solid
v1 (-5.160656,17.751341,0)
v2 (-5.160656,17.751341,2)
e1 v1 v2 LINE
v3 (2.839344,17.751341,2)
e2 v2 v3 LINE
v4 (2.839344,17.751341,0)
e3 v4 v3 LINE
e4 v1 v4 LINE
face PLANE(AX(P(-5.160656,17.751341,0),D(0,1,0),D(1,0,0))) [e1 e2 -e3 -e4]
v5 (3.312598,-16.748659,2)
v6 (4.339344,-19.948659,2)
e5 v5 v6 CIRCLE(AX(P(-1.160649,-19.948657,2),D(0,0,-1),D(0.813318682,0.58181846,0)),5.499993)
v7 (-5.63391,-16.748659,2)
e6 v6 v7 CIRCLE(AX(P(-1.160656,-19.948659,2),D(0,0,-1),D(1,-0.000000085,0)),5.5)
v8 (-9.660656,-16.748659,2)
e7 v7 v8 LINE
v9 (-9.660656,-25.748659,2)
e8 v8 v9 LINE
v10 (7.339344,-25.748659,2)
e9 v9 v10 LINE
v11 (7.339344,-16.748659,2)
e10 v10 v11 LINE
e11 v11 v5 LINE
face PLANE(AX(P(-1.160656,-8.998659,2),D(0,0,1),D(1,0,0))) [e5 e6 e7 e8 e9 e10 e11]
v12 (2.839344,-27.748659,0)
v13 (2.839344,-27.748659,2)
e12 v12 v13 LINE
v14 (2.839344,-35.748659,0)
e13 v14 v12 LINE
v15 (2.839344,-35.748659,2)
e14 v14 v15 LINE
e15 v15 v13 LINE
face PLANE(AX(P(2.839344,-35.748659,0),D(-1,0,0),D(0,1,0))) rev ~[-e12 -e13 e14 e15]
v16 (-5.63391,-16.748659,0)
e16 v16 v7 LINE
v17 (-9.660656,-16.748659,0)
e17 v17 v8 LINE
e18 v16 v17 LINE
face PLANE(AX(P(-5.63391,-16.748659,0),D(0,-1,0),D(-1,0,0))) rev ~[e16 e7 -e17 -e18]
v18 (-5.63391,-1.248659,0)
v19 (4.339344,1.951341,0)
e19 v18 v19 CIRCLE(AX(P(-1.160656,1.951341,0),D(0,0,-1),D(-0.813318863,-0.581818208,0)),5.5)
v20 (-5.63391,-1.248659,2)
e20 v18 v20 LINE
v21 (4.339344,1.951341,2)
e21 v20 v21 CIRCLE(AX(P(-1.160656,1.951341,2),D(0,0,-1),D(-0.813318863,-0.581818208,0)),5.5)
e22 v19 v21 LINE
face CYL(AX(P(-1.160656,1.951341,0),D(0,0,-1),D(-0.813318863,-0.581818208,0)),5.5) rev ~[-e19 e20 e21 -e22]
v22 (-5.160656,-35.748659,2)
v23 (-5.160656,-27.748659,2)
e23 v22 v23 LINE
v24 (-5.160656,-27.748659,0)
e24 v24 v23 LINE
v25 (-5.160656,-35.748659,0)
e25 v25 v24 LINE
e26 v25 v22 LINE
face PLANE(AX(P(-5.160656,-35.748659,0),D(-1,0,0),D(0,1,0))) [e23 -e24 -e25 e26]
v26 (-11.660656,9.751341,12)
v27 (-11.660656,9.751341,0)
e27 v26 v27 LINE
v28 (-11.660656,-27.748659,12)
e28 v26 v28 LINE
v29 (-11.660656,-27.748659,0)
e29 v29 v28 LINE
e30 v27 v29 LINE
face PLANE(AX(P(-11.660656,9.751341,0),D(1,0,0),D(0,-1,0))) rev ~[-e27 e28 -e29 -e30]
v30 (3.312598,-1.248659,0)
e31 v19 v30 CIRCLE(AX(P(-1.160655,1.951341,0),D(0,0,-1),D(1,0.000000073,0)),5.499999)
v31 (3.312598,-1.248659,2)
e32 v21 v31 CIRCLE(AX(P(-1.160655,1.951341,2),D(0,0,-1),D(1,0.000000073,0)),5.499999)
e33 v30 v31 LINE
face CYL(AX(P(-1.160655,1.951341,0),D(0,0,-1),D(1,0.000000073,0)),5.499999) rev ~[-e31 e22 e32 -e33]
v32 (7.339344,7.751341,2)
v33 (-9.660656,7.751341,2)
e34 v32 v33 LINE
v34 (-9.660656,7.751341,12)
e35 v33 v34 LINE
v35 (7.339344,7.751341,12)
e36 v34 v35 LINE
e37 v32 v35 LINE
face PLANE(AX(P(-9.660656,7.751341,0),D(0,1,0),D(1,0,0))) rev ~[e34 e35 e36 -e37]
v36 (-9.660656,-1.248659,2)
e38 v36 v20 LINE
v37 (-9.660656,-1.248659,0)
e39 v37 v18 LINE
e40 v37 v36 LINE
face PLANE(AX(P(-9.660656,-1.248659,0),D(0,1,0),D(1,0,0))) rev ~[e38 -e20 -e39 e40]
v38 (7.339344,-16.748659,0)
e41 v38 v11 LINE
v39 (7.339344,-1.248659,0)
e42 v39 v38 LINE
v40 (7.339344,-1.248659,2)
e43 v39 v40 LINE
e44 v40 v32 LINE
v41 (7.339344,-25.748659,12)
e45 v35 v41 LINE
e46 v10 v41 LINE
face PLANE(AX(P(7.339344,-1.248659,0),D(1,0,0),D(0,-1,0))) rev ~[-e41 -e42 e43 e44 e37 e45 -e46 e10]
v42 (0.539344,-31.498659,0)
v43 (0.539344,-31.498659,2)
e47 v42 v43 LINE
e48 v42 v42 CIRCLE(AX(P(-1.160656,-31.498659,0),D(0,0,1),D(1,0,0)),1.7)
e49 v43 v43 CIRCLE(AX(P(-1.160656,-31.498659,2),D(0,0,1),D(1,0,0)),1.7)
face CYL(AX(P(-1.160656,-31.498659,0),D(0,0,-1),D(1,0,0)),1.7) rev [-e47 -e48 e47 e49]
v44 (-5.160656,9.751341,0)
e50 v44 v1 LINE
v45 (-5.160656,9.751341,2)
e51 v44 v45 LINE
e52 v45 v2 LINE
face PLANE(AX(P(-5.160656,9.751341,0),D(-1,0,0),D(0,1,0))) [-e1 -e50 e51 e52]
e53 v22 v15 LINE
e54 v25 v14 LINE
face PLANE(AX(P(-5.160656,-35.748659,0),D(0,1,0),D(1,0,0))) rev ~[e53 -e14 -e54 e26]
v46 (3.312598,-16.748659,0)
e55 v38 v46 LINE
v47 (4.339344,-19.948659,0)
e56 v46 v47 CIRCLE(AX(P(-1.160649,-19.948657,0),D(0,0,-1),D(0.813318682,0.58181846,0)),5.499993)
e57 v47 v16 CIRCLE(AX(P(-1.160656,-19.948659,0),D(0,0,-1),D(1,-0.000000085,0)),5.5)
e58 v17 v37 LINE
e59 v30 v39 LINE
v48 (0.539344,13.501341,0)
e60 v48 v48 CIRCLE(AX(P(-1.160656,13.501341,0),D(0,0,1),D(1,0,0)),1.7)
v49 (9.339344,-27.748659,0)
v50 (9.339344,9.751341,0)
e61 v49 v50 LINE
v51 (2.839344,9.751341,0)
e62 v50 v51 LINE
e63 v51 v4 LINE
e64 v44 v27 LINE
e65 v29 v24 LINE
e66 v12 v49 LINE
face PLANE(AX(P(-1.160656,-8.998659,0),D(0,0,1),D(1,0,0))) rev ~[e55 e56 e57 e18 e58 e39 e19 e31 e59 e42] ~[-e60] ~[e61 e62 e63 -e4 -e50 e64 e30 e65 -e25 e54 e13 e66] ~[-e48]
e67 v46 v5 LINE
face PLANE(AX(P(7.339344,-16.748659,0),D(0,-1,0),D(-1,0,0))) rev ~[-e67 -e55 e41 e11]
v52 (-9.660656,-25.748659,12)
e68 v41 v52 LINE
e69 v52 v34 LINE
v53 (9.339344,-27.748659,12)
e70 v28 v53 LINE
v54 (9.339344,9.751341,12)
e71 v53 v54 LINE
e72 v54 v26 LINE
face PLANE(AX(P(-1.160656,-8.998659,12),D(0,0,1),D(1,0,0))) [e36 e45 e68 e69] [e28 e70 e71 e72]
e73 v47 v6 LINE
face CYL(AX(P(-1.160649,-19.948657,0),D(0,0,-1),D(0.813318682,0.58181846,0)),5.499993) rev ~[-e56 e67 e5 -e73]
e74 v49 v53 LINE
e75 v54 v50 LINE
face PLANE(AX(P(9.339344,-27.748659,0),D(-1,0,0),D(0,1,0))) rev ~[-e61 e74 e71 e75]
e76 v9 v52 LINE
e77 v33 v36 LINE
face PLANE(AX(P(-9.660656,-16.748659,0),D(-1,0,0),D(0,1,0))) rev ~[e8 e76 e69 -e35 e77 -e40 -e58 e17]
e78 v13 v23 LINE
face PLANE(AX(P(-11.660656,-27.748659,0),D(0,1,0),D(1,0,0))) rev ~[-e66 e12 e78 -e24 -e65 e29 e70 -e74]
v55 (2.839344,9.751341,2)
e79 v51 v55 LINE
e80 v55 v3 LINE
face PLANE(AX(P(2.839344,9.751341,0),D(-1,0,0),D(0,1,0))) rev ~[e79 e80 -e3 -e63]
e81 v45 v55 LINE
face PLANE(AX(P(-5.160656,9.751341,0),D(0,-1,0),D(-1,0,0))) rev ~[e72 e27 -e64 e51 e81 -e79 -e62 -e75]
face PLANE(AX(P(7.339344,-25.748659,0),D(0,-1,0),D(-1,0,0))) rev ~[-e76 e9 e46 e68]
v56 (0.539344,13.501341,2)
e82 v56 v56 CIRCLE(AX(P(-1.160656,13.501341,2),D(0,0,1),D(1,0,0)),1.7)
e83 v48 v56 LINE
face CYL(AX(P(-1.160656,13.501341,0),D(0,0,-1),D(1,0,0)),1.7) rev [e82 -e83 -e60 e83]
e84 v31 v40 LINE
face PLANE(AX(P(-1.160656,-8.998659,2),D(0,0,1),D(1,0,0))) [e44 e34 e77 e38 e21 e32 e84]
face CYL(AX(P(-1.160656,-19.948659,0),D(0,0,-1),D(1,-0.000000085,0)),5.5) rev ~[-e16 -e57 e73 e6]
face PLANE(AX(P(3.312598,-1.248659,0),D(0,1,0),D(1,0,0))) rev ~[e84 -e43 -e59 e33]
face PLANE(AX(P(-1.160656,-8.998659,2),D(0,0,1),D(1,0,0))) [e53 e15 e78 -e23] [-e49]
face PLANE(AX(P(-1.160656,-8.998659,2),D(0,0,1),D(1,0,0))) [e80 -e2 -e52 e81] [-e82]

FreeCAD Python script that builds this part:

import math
import FreeCAD as App
import Part
import Sketcher
from FreeCAD import Vector

doc = App.newDocument("Part")
body = doc.addObject("PartDesign::Body", "Body")

sketch1 = body.newObject("Sketcher::SketchObject", "Sketch")
sketch1.AttachmentSupport = (doc.getObject("XY_Plane"), [""])
sketch1.MapMode = "FlatFace"
sketch1.addGeometry([
    Part.LineSegment(Vector(-11.660656, 9.751341, 0), Vector(-11.660656, -27.748659, 0)),
    Part.LineSegment(Vector(-11.660656, -27.748659, 0), Vector(-5.160656, -27.748659, 0)),
    Part.LineSegment(Vector(-5.160656, -27.748659, 0), Vector(-5.160656, -35.748659, 0)),
    Part.LineSegment(Vector(-5.160656, -35.748659, 0), Vector(2.839344, -35.748659, 0)),
    Part.LineSegment(Vector(2.839344, -35.748659, 0), Vector(2.839344, -27.748659, 0)),
    Part.LineSegment(Vector(2.839344, -27.748659, 0), Vector(9.339344, -27.748659, 0)),
    Part.LineSegment(Vector(9.339344, -27.748659, 0), Vector(9.339344, 9.751341, 0)),
    Part.LineSegment(Vector(9.339344, 9.751341, 0), Vector(2.839344, 9.751341, 0)),
    Part.LineSegment(Vector(2.839344, 9.751341, 0), Vector(2.839344, 17.751341, 0)),
    Part.LineSegment(Vector(2.839344, 17.751341, 0), Vector(-5.160656, 17.751341, 0)),
    Part.LineSegment(Vector(-5.160656, 17.751341, 0), Vector(-5.160656, 9.751341, 0)),
    Part.LineSegment(Vector(-5.160656, 9.751341, 0), Vector(-11.660656, 9.751341, 0)),
    Part.Circle(Vector(-1.160656, -31.498659, 0), Vector(0, 0, 1), 1.7),
    Part.LineSegment(Vector(-9.660656, -16.748659, 0), Vector(-9.660656, -1.248659, 0)),
    Part.LineSegment(Vector(-9.660656, -1.248659, 0), Vector(-5.63391, -1.248659, 0)),
    Part.ArcOfCircle(Part.Circle(Vector(-1.160656, 1.951341, 0), Vector(0, 0, 1), 5.5), math.radians(-0.000002), math.radians(215.578528)),
    Part.ArcOfCircle(Part.Circle(Vector(-1.160655, 1.951341, 0), Vector(0, 0, 1), 5.499999), math.radians(-35.578525), math.radians(0.000004)),
    Part.LineSegment(Vector(3.312598, -1.248659, 0), Vector(7.339344, -1.248659, 0)),
    Part.LineSegment(Vector(7.339344, -1.248659, 0), Vector(7.339344, -16.748659, 0)),
    Part.LineSegment(Vector(7.339344, -16.748659, 0), Vector(3.312598, -16.748659, 0)),
    Part.ArcOfCircle(Part.Circle(Vector(-1.160649, -19.948657, 0), Vector(0, 0, 1), 5.499993), math.radians(-0.000025), math.radians(35.578545)),
    Part.ArcOfCircle(Part.Circle(Vector(-1.160656, -19.948659, 0), Vector(0, 0, 1), 5.5), math.radians(144.42148), math.radians(359.999995)),
    Part.LineSegment(Vector(-5.63391, -16.748659, 0), Vector(-9.660656, -16.748659, 0)),
    Part.Circle(Vector(-1.160656, 13.501341, 0), Vector(0, 0, 1), 1.7),
], False)
sketch1.addConstraint([
    Sketcher.Constraint("Coincident", 0, 2, 1, 1),
    Sketcher.Constraint("Coincident", 1, 2, 2, 1),
    Sketcher.Constraint("Coincident", 2, 2, 3, 1),
    Sketcher.Constraint("Coincident", 3, 2, 4, 1),
    Sketcher.Constraint("Coincident", 4, 2, 5, 1),
    Sketcher.Constraint("Coincident", 5, 2, 6, 1),
    Sketcher.Constraint("Coincident", 6, 2, 7, 1),
    Sketcher.Constraint("Coincident", 7, 2, 8, 1),
    Sketcher.Constraint("Coincident", 8, 2, 9, 1),
    Sketcher.Constraint("Coincident", 9, 2, 10, 1),
    Sketcher.Constraint("Coincident", 10, 2, 11, 1),
    Sketcher.Constraint("Coincident", 11, 2, 0, 1),
    Sketcher.Constraint("Coincident", 13, 2, 14, 1),
    Sketcher.Constraint("Coincident", 14, 2, 15, 2),
    Sketcher.Constraint("Tangent", 15, 1, 16, 2),
    Sketcher.Constraint("Coincident", 16, 1, 17, 1),
    Sketcher.Constraint("Coincident", 17, 2, 18, 1),
    Sketcher.Constraint("Coincident", 18, 2, 19, 1),
    Sketcher.Constraint("Coincident", 19, 2, 20, 2),
    Sketcher.Constraint("Tangent", 20, 1, 21, 2),
    Sketcher.Constraint("Coincident", 21, 1, 22, 1),
    Sketcher.Constraint("Coincident", 22, 2, 13, 1),
    Sketcher.Constraint("Vertical", 0),
    Sketcher.Constraint("Horizontal", 1),
    Sketcher.Constraint("Vertical", 2),
    Sketcher.Constraint("Horizontal", 3),
    Sketcher.Constraint("Vertical", 4),
    Sketcher.Constraint("Horizontal", 5),
    Sketcher.Constraint("Vertical", 6),
    Sketcher.Constraint("Horizontal", 7),
    Sketcher.Constraint("Vertical", 8),
    Sketcher.Constraint("Horizontal", 9),
    Sketcher.Constraint("Vertical", 10),
    Sketcher.Constraint("Horizontal", 11),
    Sketcher.Constraint("Vertical", 13),
    Sketcher.Constraint("Horizontal", 14),
    Sketcher.Constraint("Horizontal", 17),
    Sketcher.Constraint("Vertical", 18),
    Sketcher.Constraint("Horizontal", 19),
    Sketcher.Constraint("Horizontal", 22),
    Sketcher.Constraint("Equal", 15, 16),
    Sketcher.Constraint("Equal", 16, 21),
    Sketcher.Constraint("Equal", 12, 23),
    Sketcher.Constraint("Horizontal", 1, 2, 4, 2),
    Sketcher.Constraint("Horizontal", 7, 2, 10, 2),
    Sketcher.Constraint("Horizontal", 16, 3, 15, 1),
    Sketcher.Constraint("Horizontal", 14, 2, 16, 1),
    Sketcher.Constraint("Horizontal", 21, 3, 20, 1),
    Sketcher.Constraint("Horizontal", 19, 2, 21, 1),
    Sketcher.Constraint("Vertical", 12, 3, 15, 3),
    Sketcher.Constraint("Vertical", 16, 3, 21, 3),
    Sketcher.Constraint("Vertical", 21, 3, 23, 3),
    Sketcher.Constraint("Vertical", 4, 2, 7, 2),
    Sketcher.Constraint("Vertical", 2, 2, 9, 2),
    Sketcher.Constraint("Vertical", 16, 1, 19, 2),
    Sketcher.Constraint("Vertical", 14, 2, 21, 1),
    Sketcher.Constraint("Equal", 1, 5),
    Sketcher.Constraint("Equal", 14, 17),
    Sketcher.Constraint("Equal", 9, 2),
    Sketcher.Constraint("Equal", 4, 8),
    Sketcher.Constraint("Diameter", 12, 3.4),
    Sketcher.Constraint("Radius", 15, 5.5),
    Sketcher.Constraint("DistanceX", 3, 1, 3, 2, 8.0),
    Sketcher.Constraint("DistanceX", 1, 1, 1, 2, 6.5),
    Sketcher.Constraint("DistanceY", 0, 2, 0, 1, 37.5),
    Sketcher.Constraint("DistanceY", 13, 1, 13, 2, 15.5),
    Sketcher.Constraint("DistanceY", 12, 3, 23, 3, 45.0),
    Sketcher.Constraint("DistanceX", 1, 2, 12, 3, 4.0),
    Sketcher.Constraint("DistanceX", 11, 2, 13, 2, 2.0),
    Sketcher.Constraint("DistanceY", 13, 2, 11, 2, 11.0),
    Sketcher.Constraint("DistanceY", 21, 3, 16, 3, 21.899999),
    Sketcher.Constraint("DistanceY", 12, 3, 15, 3, 33.45),
    Sketcher.Constraint("DistanceX", -1, 1, 16, 1, 3.312598),
    Sketcher.Constraint("DistanceY", 12, 3, -1, 1, 31.498659),
])
pad1 = body.newObject("PartDesign::Pad", "Pad")
pad1.Profile = sketch1
pad1.Length = 2

sketch2 = body.newObject("Sketcher::SketchObject", "Sketch001")
sketch2.AttachmentSupport = (doc.getObject("XY_Plane"), [""])
sketch2.MapMode = "FlatFace"
sketch2.addGeometry([
    Part.LineSegment(Vector(-11.660656, 9.751341, 0), Vector(-11.660656, -27.748659, 0)),
    Part.LineSegment(Vector(-11.660656, -27.748659, 0), Vector(9.339344, -27.748659, 0)),
    Part.LineSegment(Vector(9.339344, -27.748659, 0), Vector(9.339344, 9.751341, 0)),
    Part.LineSegment(Vector(9.339344, 9.751341, 0), Vector(-11.660656, 9.751341, 0)),
    Part.LineSegment(Vector(-9.660656, -25.748659, 0), Vector(-9.660656, 7.751341, 0)),
    Part.LineSegment(Vector(-9.660656, 7.751341, 0), Vector(7.339344, 7.751341, 0)),
    Part.LineSegment(Vector(7.339344, 7.751341, 0), Vector(7.339344, -25.748659, 0)),
    Part.LineSegment(Vector(7.339344, -25.748659, 0), Vector(-9.660656, -25.748659, 0)),
], False)
sketch2.addConstraint([
    Sketcher.Constraint("Coincident", 0, 2, 1, 1),
    Sketcher.Constraint("Coincident", 1, 2, 2, 1),
    Sketcher.Constraint("Coincident", 2, 2, 3, 1),
    Sketcher.Constraint("Coincident", 3, 2, 0, 1),
    Sketcher.Constraint("Coincident", 4, 2, 5, 1),
    Sketcher.Constraint("Coincident", 5, 2, 6, 1),
    Sketcher.Constraint("Coincident", 6, 2, 7, 1),
    Sketcher.Constraint("Coincident", 7, 2, 4, 1),
    Sketcher.Constraint("Vertical", 0),
    Sketcher.Constraint("Horizontal", 1),
    Sketcher.Constraint("Vertical", 2),
    Sketcher.Constraint("Horizontal", 3),
    Sketcher.Constraint("Vertical", 4),
    Sketcher.Constraint("Horizontal", 5),
    Sketcher.Constraint("Vertical", 6),
    Sketcher.Constraint("Horizontal", 7),
    Sketcher.Constraint("DistanceX", 1, 1, 1, 2, 21.0),
    Sketcher.Constraint("DistanceX", 5, 1, 5, 2, 17.0),
    Sketcher.Constraint("DistanceY", 0, 2, 0, 1, 37.5),
    Sketcher.Constraint("DistanceY", 4, 1, 4, 2, 33.5),
    Sketcher.Constraint("DistanceX", 3, 2, 4, 2, 2.0),
    Sketcher.Constraint("DistanceY", 4, 2, 3, 2, 2.0),
    Sketcher.Constraint("DistanceY", 0, 2, -1, 1, 27.748659),
    Sketcher.Constraint("DistanceX", 0, 2, -1, 1, 11.660656),
])
pad2 = body.newObject("PartDesign::Pad", "Pad001")
pad2.Profile = sketch2
pad2.Length = 12

doc.recompute()
